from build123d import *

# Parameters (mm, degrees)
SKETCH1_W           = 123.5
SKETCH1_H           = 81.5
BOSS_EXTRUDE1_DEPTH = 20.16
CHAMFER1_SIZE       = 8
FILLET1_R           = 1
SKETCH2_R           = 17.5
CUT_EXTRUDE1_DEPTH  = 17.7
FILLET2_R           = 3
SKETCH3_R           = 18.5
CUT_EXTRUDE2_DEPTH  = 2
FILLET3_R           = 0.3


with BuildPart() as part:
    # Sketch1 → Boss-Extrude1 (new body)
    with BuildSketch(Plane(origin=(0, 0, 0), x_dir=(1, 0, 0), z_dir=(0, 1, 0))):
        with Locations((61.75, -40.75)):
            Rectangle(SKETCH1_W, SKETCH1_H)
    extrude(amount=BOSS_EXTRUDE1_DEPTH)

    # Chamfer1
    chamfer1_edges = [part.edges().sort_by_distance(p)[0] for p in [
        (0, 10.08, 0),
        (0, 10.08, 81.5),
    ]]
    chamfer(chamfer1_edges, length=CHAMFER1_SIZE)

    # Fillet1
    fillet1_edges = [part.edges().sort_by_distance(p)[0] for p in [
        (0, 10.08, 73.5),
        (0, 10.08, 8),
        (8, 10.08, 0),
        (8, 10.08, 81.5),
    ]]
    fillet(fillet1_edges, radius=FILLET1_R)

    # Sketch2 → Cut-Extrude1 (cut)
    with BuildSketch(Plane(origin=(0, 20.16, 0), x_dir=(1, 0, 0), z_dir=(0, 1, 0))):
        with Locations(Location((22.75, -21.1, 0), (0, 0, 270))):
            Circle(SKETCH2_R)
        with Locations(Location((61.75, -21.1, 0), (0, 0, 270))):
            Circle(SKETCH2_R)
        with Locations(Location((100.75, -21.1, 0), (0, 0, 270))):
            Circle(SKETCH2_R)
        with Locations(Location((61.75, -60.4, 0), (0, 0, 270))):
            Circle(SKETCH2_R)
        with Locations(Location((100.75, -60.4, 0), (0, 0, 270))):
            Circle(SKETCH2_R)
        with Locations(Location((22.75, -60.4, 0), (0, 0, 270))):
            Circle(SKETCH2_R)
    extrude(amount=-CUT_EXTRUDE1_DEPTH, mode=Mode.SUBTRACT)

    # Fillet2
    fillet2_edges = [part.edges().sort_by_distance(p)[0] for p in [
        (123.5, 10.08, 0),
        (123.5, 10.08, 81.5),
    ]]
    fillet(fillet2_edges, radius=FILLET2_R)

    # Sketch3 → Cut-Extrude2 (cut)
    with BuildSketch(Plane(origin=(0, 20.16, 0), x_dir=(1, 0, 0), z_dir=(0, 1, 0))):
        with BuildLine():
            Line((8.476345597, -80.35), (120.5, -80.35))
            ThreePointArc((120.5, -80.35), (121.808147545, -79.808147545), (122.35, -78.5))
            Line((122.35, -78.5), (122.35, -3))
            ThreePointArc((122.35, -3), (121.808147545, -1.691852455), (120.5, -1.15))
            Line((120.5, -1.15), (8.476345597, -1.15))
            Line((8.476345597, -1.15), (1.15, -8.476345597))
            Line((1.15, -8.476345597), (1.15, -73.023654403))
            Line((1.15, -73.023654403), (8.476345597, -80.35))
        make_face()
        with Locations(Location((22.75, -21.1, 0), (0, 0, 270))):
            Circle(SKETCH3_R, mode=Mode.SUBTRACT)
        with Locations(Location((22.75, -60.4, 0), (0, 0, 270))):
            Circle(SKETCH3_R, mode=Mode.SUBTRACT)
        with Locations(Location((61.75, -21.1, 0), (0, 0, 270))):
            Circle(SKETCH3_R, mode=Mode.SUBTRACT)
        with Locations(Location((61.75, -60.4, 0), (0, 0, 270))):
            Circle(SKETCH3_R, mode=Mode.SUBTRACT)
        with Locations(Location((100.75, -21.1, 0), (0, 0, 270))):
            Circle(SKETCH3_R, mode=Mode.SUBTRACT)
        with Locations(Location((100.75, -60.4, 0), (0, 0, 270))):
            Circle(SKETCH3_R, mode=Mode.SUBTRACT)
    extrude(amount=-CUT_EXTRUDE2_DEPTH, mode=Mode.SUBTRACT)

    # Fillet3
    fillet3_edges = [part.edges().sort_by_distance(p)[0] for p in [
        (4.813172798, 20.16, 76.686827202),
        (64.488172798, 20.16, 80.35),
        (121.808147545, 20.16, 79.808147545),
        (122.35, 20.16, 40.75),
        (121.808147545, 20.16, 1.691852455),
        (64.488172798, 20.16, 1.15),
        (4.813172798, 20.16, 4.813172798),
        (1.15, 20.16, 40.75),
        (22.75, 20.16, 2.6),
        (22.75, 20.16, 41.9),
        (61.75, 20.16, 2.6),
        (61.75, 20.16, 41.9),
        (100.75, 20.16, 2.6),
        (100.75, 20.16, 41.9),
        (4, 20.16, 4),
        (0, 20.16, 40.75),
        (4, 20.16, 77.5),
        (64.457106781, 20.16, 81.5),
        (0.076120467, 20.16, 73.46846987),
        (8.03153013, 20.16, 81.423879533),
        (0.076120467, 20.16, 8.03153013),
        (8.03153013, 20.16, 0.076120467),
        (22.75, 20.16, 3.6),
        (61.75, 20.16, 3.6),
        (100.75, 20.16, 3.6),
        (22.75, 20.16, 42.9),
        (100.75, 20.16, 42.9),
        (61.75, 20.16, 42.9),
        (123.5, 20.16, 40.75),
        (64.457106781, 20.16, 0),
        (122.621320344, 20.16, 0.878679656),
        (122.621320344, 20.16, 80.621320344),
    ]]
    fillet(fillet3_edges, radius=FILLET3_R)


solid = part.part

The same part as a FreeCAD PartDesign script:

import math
import FreeCAD as App
import Part
import Sketcher

V = App.Vector
Q = App.Units.Quantity


def edges_at(feature, points):
    """Names of the edges that pass closest to the given points."""
    edges = feature.Shape.Edges
    near = lambda p: min(range(len(edges)), key=lambda i: edges[i].distToShape(Part.Vertex(*p))[0])
    return sorted({f"Edge{near(p) + 1}" for p in points})


def add_polygon(sketch, points):
    """Adds a closed chain of lines whose ends are joined by coincident constraints."""
    first, n = sketch.GeometryCount, len(points)
    for a, b in zip(points, points[1:] + points[:1]):
        sketch.addGeometry(Part.LineSegment(App.Vector(*a, 0), App.Vector(*b, 0)), False)
    for i in range(n):
        sketch.addConstraint(Sketcher.Constraint("Coincident", first + i, 2, first + (i + 1) % n, 1))

doc = App.newDocument("Part")
body = doc.addObject("PartDesign::Body", "Body")

# Sketch on XZ plane
sketch1 = body.newObject("Sketcher::SketchObject", "Sketch")
sketch1.AttachmentSupport = (doc.getObject("XZ_Plane"), [""])
sketch1.MapMode = "FlatFace"
add_polygon(sketch1, [(0, 0), (0, 82), (124, 82), (124, 0)])  # lines 0-3
sketch1.addConstraint(Sketcher.Constraint("Vertical", 0))
sketch1.addConstraint(Sketcher.Constraint("Horizontal", 1))
sketch1.addConstraint(Sketcher.Constraint("Vertical", 2))
sketch1.addConstraint(Sketcher.Constraint("Horizontal", 3))
sketch1.addConstraint(Sketcher.Constraint("Coincident", 3, 2, -1, 1))
sketch1.addConstraint(Sketcher.Constraint("DistanceX", 1, 1, 1, 2, Q("123.5 mm")))
sketch1.addConstraint(Sketcher.Constraint("DistanceY", 0, 1, 0, 2, Q("81.5 mm")))
pad1 = body.newObject("PartDesign::Pad", "Pad")
pad1.Profile = sketch1
pad1.Length = 20.16
pad1.Reversed = True
doc.recompute()

chamfer = body.newObject("PartDesign::Chamfer", "Chamfer")
chamfer.Base = (pad1, edges_at(pad1, [(0, 10.08, 0), (0, 10.08, 81.5)]))
chamfer.Size = 8
doc.recompute()

fillet = body.newObject("PartDesign::Fillet", "Fillet")
fillet.Base = (chamfer, edges_at(chamfer, [
    (0, 10.08, 73.5),
    (0, 10.08, 8),
    (8, 10.08, 0),
    (8, 10.08, 81.5),
]))
fillet.Radius = 1

# Sketch on XZ plane
sketch2 = body.newObject("Sketcher::SketchObject", "Sketch001")
sketch2.AttachmentSupport = (doc.getObject("XZ_Plane"), [""])
sketch2.MapMode = "FlatFace"
sketch2.AttachmentOffset = App.Placement(V(0, 0, -20.16), App.Rotation())
sketch2.addGeometry(Part.Circle(V(23, 21, 0), V(0, 0, 1), 18), False)
sketch2.addGeometry(Part.Circle(V(62, 21, 0), V(0, 0, 1), 18), False)
sketch2.addGeometry(Part.Circle(V(101, 21, 0), V(0, 0, 1), 18), False)
sketch2.addGeometry(Part.Circle(V(62, 60, 0), V(0, 0, 1), 18), False)
sketch2.addGeometry(Part.Circle(V(101, 60, 0), V(0, 0, 1), 18), False)
sketch2.addGeometry(Part.Circle(V(23, 60, 0), V(0, 0, 1), 18), False)
sketch2.addConstraint(Sketcher.Constraint("Equal", 0, 1))
sketch2.addConstraint(Sketcher.Constraint("Equal", 1, 2))
sketch2.addConstraint(Sketcher.Constraint("Equal", 2, 3))
sketch2.addConstraint(Sketcher.Constraint("Equal", 3, 4))
sketch2.addConstraint(Sketcher.Constraint("Equal", 4, 5))
sketch2.addConstraint(Sketcher.Constraint("Horizontal", 0, 3, 1, 3))
sketch2.addConstraint(Sketcher.Constraint("Horizontal", 1, 3, 2, 3))
sketch2.addConstraint(Sketcher.Constraint("Horizontal", 3, 3, 4, 3))
sketch2.addConstraint(Sketcher.Constraint("Horizontal", 4, 3, 5, 3))
sketch2.addConstraint(Sketcher.Constraint("Vertical", 1, 3, 3, 3))
sketch2.addConstraint(Sketcher.Constraint("Vertical", 2, 3, 4, 3))
sketch2.addConstraint(Sketcher.Constraint("Vertical", 0, 3, 5, 3))
sketch2.addConstraint(Sketcher.Constraint("Diameter", 0, Q("35 mm")))
sketch2.addConstraint(Sketcher.Constraint("DistanceX", 0, 3, 1, 3, Q("39 mm")))
sketch2.addConstraint(Sketcher.Constraint("DistanceX", 1, 3, 2, 3, Q("39 mm")))
sketch2.addConstraint(Sketcher.Constraint("DistanceY", -1, 1, 0, 3, Q("21.1 mm")))
sketch2.addConstraint(Sketcher.Constraint("DistanceY", -1, 1, 3, 3, Q("60.4 mm")))
sketch2.addConstraint(Sketcher.Constraint("DistanceX", -1, 1, 0, 3, Q("22.75 mm")))
pocket1 = body.newObject("PartDesign::Pocket", "Pocket")
pocket1.Profile = sketch2
pocket1.Length = 17.7
pocket1.Reversed = True
doc.recompute()

fillet2 = body.newObject("PartDesign::Fillet", "Fillet001")
fillet2.Base = (pocket1, edges_at(pocket1, [(123.5, 10.08, 0), (123.5, 10.08, 81.5)]))
fillet2.Radius = 3

# Sketch on XZ plane
sketch3 = body.newObject("Sketcher::SketchObject", "Sketch002")
sketch3.AttachmentSupport = (doc.getObject("XZ_Plane"), [""])
sketch3.MapMode = "FlatFace"
sketch3.AttachmentOffset = App.Placement(V(0, 0, -20.16), App.Rotation())
sketch3.addGeometry(Part.LineSegment(V(8.5, 80.3, 0), V(120.5, 80.3, 0)), False)
sketch3.addGeometry(Part.ArcOfCircle(Part.Circle(V(120.5, 78.5, 0), V(0, 0, 1), 1.9), math.radians(0), math.radians(90)), False)
sketch3.addGeometry(Part.LineSegment(V(122.3, 78.5, 0), V(122.3, 3, 0)), False)
sketch3.addGeometry(Part.ArcOfCircle(Part.Circle(V(120.5, 3, 0), V(0, 0, 1), 1.9), math.radians(-90), math.radians(0)), False)
sketch3.addGeometry(Part.LineSegment(V(120.5, 1.1, 0), V(8.5, 1.1, 0)), False)
sketch3.addGeometry(Part.LineSegment(V(8.5, 1.1, 0), V(1.1, 8.5, 0)), False)
sketch3.addGeometry(Part.LineSegment(V(1.1, 8.5, 0), V(1.1, 73, 0)), False)
sketch3.addGeometry(Part.LineSegment(V(1.1, 73, 0), V(8.5, 80.3, 0)), False)
sketch3.addGeometry(Part.Circle(V(22.8, 60.4, 0), V(0, 0, 1), 18.5), False)
sketch3.addGeometry(Part.Circle(V(61.8, 60.4, 0), V(0, 0, 1), 18.5), False)
sketch3.addGeometry(Part.Circle(V(100.8, 60.4, 0), V(0, 0, 1), 18.5), False)
sketch3.addGeometry(Part.Circle(V(22.8, 21.1, 0), V(0, 0, 1), 18.5), False)
sketch3.addGeometry(Part.Circle(V(61.8, 21.1, 0), V(0, 0, 1), 18.5), False)
sketch3.addGeometry(Part.Circle(V(100.8, 21.1, 0), V(0, 0, 1), 18.5), False)
sketch3.addConstraint(Sketcher.Constraint("Tangent", 0, 2, 1, 2))
sketch3.addConstraint(Sketcher.Constraint("Tangent", 1, 1, 2, 1))
sketch3.addConstraint(Sketcher.Constraint("Tangent", 2, 2, 3, 2))
sketch3.addConstraint(Sketcher.Constraint("Tangent", 3, 1, 4, 1))
sketch3.addConstraint(Sketcher.Constraint("Coincident", 4, 2, 5, 1))
sketch3.addConstraint(Sketcher.Constraint("Coincident", 5, 2, 6, 1))
sketch3.addConstraint(Sketcher.Constraint("Coincident", 6, 2, 7, 1))
sketch3.addConstraint(Sketcher.Constraint("Coincident", 7, 2, 0, 1))
sketch3.addConstraint(Sketcher.Constraint("Horizontal", 0))
sketch3.addConstraint(Sketcher.Constraint("Vertical", 2))
sketch3.addConstraint(Sketcher.Constraint("Horizontal", 4))
sketch3.addConstraint(Sketcher.Constraint("Vertical", 6))
sketch3.addConstraint(Sketcher.Constraint("Equal", 1, 3))
sketch3.addConstraint(Sketcher.Constraint("Equal", 8, 9))
sketch3.addConstraint(Sketcher.Constraint("Equal", 9, 10))
sketch3.addConstraint(Sketcher.Constraint("Equal", 10, 11))
sketch3.addConstraint(Sketcher.Constraint("Equal", 11, 12))
sketch3.addConstraint(Sketcher.Constraint("Equal", 12, 13))
sketch3.addConstraint(Sketcher.Constraint("Perpendicular", 5, 7))
sketch3.addConstraint(Sketcher.Constraint("Horizontal", 8, 3, 9, 3))
sketch3.addConstraint(Sketcher.Constraint("Horizontal", 9, 3, 10, 3))
sketch3.addConstraint(Sketcher.Constraint("Horizontal", 11, 3, 12, 3))
sketch3.addConstraint(Sketcher.Constraint("Horizontal", 12, 3, 13, 3))
sketch3.addConstraint(Sketcher.Constraint("Vertical", 8, 3, 11, 3))
sketch3.addConstraint(Sketcher.Constraint("Vertical", 9, 3, 12, 3))
sketch3.addConstraint(Sketcher.Constraint("Vertical", 10, 3, 13, 3))
sketch3.addConstraint(Sketcher.Constraint("Vertical", 4, 2, 7, 2))
sketch3.addConstraint(Sketcher.Constraint("Equal", 5, 7))
sketch3.addConstraint(Sketcher.Constraint("Diameter", 8, Q("37 mm")))
sketch3.addConstraint(Sketcher.Constraint("Radius", 1, Q("1.85 mm")))
sketch3.addConstraint(Sketcher.Constraint("DistanceY", 2, 2, 2, 1, Q("75.5 mm")))
sketch3.addConstraint(Sketcher.Constraint("DistanceY", -1, 1, 3, 3, Q("3 mm")))
sketch3.addConstraint(Sketcher.Constraint("DistanceX", 8, 3, 9, 3, Q("39 mm")))
sketch3.addConstraint(Sketcher.Constraint("DistanceX", 9, 3, 10, 3, Q("39 mm")))
sketch3.addConstraint(Sketcher.Constraint("DistanceX", -1, 1, 1, 3, Q("120.5 mm")))
sketch3.addConstraint(Sketcher.Constraint("DistanceY", -1, 1, 8, 3, Q("60.4 mm")))
sketch3.addConstraint(Sketcher.Constraint("DistanceY", -1, 1, 11, 3, Q("21.1 mm")))
sketch3.addConstraint(Sketcher.Constraint("DistanceX", 10, 3, 1, 1, Q("21.6 mm")))
sketch3.addConstraint(Sketcher.Constraint("DistanceX", 5, 2, 11, 3, Q("21.6 mm")))
sketch3.addConstraint(Sketcher.Constraint("DistanceY", 6, 1, 6, 2, Q("64.547309 mm")))
pocket2 = body.newObject("PartDesign::Pocket", "Pocket001")
pocket2.Profile = sketch3
pocket2.Length = 2
pocket2.Reversed = True
doc.recompute()

fillet3 = body.newObject("PartDesign::Fillet", "Fillet002")
fillet3.Base = (pocket2, edges_at(pocket2, [
    (4.813, 20.16, 76.687),
    (64.488, 20.16, 80.35),
    (121.808, 20.16, 79.808),
    (122.35, 20.16, 40.75),
    (121.808, 20.16, 1.692),
    (64.488, 20.16, 1.15),
    (4.813, 20.16, 4.813),
    (1.15, 20.16, 40.75),
    (22.75, 20.16, 2.6),
    (22.75, 20.16, 41.9),
    (61.75, 20.16, 2.6),
    (61.75, 20.16, 41.9),
    (100.75, 20.16, 2.6),
    (100.75, 20.16, 41.9),
    (4, 20.16, 4),
    (0, 20.16, 40.75),
    (4, 20.16, 77.5),
    (64.457, 20.16, 81.5),
    (0.076, 20.16, 73.468),
    (8.032, 20.16, 81.424),
    (0.076, 20.16, 8.032),
    (8.032, 20.16, 0.076),
    (22.75, 20.16, 3.6),
    (61.75, 20.16, 3.6),
    (100.75, 20.16, 3.6),
    (22.75, 20.16, 42.9),
    (100.75, 20.16, 42.9),
    (61.75, 20.16, 42.9),
    (123.5, 20.16, 40.75),
    (64.457, 20.16, 0),
    (122.621, 20.16, 0.879),
    (122.621, 20.16, 80.621),
]))
fillet3.Radius = 0.3

doc.recompute()
